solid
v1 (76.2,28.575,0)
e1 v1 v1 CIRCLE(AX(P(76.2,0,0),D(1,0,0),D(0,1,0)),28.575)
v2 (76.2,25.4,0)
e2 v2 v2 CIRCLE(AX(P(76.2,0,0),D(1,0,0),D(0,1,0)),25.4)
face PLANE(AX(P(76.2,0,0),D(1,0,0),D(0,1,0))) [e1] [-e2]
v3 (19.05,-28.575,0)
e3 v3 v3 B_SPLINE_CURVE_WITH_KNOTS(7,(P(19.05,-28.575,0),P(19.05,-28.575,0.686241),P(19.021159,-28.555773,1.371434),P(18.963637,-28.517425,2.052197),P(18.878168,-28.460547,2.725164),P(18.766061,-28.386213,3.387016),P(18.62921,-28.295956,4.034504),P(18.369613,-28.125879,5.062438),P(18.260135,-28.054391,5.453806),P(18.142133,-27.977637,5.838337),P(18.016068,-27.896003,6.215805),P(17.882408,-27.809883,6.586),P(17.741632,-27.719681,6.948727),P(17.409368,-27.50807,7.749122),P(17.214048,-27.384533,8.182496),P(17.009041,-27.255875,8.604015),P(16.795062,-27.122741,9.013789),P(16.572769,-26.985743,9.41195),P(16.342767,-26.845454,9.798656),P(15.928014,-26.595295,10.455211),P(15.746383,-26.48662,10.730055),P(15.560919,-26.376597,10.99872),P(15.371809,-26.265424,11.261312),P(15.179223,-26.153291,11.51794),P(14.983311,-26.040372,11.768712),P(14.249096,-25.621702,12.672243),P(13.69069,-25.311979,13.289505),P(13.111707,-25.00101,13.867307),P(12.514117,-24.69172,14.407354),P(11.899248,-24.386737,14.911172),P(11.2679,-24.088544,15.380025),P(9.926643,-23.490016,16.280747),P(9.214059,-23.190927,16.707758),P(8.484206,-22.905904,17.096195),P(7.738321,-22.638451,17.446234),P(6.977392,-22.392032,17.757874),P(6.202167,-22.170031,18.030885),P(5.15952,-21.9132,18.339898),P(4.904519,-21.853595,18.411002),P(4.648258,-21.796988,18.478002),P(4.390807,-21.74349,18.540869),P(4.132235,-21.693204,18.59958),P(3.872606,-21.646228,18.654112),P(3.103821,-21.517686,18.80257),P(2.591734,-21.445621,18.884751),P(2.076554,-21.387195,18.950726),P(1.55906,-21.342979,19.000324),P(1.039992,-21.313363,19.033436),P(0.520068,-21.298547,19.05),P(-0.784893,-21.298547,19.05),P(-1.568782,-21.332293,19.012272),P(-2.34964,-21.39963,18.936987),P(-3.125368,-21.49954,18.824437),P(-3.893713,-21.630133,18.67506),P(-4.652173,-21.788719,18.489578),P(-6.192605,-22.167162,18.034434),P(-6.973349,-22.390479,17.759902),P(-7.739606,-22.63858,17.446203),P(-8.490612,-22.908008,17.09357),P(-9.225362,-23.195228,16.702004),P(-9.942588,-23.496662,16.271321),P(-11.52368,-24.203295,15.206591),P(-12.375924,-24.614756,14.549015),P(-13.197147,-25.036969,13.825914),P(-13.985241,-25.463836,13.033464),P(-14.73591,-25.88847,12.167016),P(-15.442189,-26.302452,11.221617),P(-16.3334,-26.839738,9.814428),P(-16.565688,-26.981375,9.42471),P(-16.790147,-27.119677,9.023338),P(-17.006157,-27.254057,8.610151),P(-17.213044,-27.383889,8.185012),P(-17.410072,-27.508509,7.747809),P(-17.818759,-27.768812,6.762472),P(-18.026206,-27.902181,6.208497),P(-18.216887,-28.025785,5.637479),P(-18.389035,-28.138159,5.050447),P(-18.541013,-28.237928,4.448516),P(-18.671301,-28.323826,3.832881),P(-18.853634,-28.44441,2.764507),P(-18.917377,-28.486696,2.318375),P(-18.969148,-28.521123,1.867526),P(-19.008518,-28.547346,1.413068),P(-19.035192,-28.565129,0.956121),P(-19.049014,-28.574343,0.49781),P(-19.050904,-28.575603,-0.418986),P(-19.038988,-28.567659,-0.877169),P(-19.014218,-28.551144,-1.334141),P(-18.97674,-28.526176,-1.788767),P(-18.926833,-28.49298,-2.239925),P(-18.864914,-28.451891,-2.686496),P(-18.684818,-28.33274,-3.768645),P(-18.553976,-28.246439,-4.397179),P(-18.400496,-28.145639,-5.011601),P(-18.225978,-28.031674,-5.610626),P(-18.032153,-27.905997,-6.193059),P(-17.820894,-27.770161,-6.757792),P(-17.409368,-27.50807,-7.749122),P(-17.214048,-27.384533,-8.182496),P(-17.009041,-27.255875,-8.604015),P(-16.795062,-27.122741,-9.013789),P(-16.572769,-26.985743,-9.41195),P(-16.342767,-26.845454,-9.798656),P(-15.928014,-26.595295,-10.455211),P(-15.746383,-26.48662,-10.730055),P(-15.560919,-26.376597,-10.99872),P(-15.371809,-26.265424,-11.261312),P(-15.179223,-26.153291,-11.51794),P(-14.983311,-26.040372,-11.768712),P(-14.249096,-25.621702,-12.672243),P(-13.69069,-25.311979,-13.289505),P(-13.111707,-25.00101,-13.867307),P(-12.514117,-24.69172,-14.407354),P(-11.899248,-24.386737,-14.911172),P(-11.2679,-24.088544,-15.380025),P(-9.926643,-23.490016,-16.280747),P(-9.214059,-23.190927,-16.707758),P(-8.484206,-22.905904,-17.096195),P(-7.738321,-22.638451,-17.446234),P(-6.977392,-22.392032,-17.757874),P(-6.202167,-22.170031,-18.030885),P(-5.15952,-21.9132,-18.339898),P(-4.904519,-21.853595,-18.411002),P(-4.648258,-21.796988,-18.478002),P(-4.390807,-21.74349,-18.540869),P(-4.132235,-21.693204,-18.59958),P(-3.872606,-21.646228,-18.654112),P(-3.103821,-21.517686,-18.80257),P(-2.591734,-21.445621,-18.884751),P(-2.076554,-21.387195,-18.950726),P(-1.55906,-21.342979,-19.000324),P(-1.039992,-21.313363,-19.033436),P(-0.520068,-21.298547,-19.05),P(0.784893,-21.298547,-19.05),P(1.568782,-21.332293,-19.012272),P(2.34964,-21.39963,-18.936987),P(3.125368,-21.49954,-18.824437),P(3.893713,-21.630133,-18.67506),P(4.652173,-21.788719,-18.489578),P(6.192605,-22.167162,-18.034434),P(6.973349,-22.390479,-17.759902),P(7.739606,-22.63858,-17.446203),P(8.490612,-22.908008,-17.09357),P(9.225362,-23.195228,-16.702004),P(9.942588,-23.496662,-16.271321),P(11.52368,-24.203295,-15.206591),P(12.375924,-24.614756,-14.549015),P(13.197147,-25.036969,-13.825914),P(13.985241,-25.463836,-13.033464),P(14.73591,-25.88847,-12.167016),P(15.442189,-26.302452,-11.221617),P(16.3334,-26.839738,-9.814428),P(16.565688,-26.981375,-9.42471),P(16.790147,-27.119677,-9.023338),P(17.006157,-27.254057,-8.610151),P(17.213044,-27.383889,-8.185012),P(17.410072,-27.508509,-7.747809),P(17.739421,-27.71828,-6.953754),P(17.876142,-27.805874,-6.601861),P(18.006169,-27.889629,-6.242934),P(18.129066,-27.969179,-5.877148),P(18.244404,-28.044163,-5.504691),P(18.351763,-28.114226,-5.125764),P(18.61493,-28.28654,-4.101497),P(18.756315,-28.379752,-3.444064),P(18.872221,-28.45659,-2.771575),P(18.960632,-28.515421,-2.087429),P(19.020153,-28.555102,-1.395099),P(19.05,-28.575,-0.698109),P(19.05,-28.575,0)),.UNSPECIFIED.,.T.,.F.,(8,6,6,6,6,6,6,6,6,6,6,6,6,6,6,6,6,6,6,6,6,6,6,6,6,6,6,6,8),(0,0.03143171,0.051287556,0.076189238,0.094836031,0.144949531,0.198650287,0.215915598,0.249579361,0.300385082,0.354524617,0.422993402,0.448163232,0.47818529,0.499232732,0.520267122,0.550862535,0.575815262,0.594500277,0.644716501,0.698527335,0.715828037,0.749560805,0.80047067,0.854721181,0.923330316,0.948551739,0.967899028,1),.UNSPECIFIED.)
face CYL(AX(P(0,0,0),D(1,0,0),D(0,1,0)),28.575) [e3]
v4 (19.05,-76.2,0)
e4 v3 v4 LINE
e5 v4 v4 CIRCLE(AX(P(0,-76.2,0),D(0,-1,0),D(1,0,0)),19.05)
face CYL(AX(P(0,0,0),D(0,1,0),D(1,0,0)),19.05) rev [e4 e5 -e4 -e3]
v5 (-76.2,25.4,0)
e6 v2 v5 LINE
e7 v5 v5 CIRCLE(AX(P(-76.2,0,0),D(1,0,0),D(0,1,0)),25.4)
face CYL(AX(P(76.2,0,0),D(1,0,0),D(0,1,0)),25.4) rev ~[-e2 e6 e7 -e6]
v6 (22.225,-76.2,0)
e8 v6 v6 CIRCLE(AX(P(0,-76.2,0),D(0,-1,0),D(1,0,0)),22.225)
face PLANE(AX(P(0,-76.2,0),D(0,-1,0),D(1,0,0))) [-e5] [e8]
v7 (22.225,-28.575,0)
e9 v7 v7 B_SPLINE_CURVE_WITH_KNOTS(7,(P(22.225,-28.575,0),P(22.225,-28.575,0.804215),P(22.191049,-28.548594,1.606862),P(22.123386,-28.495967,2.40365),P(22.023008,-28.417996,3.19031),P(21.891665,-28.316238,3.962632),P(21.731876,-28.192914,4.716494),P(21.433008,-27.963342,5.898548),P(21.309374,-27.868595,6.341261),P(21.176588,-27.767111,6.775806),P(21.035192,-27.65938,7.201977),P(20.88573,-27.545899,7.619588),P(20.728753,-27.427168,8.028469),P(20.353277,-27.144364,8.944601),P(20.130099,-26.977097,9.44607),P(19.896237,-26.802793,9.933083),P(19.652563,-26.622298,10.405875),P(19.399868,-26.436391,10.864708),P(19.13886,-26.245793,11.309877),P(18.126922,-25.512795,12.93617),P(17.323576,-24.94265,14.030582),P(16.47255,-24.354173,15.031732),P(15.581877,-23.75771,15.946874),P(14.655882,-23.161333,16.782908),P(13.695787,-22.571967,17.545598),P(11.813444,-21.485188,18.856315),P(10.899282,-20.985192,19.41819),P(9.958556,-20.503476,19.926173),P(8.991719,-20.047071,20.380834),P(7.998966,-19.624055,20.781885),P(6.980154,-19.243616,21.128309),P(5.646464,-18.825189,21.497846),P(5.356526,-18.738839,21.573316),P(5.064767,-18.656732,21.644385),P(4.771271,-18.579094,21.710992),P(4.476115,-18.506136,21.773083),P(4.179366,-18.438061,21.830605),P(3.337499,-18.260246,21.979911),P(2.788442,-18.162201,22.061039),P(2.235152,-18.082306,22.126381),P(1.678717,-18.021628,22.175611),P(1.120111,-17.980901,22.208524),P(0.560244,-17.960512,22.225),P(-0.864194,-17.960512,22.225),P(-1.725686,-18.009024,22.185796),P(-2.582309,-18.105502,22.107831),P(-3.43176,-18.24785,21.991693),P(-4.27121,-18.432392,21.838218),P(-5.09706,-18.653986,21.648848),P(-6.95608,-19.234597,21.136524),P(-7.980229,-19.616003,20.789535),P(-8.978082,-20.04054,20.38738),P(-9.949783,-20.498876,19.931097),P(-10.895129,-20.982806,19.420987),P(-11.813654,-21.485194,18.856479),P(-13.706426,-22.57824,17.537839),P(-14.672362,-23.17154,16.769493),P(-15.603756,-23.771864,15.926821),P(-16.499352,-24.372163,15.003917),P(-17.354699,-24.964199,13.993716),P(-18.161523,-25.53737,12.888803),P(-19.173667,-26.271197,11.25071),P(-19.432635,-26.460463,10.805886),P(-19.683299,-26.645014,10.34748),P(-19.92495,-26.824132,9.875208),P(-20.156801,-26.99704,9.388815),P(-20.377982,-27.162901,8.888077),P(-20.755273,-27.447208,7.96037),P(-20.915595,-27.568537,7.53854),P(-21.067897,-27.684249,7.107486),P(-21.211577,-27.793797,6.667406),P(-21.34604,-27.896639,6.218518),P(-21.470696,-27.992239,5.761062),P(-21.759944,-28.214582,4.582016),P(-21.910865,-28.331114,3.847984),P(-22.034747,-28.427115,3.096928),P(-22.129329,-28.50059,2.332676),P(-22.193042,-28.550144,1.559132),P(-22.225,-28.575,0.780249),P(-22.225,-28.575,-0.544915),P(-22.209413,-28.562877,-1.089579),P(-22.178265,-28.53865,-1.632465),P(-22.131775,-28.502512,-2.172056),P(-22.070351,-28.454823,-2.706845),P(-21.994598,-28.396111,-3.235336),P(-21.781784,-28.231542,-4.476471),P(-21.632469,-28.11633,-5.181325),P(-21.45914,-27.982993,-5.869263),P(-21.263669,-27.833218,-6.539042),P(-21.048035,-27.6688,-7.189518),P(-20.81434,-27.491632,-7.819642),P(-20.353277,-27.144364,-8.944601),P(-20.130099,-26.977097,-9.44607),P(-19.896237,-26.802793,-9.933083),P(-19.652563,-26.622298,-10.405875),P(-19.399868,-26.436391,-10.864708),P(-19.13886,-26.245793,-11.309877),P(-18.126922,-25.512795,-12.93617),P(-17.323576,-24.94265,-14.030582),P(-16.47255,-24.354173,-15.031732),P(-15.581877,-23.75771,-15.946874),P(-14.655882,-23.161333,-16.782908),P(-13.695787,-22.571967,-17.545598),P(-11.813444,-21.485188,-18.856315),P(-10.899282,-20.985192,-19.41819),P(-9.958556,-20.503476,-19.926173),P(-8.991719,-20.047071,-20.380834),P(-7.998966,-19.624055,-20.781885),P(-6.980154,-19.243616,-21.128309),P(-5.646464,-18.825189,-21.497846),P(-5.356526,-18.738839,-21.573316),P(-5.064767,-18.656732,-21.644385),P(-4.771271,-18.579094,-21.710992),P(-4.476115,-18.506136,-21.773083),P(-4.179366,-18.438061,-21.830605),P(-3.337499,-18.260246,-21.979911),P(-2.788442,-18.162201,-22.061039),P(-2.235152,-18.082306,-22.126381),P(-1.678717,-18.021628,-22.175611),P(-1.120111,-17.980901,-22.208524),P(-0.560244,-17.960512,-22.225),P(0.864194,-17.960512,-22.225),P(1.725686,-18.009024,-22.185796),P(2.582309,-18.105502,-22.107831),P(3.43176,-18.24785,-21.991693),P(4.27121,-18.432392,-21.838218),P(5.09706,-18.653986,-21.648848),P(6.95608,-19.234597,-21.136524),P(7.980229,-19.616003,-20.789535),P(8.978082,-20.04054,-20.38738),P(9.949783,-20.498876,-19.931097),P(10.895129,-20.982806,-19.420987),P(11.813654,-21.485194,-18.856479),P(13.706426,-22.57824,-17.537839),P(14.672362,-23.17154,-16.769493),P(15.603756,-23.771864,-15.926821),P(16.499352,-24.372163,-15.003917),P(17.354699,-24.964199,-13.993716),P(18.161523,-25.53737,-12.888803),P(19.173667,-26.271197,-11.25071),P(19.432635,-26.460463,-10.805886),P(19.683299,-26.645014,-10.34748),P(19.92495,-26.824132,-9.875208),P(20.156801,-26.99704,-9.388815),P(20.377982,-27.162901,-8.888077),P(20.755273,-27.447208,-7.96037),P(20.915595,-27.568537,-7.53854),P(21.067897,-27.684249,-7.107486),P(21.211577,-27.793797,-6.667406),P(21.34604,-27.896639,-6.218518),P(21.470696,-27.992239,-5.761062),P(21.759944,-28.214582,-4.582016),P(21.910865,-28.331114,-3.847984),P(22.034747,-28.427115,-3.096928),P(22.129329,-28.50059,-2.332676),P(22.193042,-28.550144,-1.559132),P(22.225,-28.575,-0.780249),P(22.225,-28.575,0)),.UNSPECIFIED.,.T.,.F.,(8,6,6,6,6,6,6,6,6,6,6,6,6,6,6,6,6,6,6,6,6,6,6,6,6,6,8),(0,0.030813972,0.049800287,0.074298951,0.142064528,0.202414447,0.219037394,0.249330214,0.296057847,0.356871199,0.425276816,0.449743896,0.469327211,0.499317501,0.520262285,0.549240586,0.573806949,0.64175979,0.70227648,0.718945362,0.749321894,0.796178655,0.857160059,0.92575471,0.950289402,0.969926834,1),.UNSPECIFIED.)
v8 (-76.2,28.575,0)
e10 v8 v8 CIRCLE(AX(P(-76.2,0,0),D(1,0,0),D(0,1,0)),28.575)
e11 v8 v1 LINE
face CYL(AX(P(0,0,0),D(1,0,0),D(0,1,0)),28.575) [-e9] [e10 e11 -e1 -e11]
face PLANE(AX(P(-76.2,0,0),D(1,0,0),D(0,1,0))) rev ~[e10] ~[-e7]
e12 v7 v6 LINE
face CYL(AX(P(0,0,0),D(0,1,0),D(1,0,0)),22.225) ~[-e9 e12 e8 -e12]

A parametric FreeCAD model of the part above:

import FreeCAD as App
import Part
import Sketcher

V = App.Vector
Q = App.Units.Quantity

doc = App.newDocument("Part")
body = doc.addObject("PartDesign::Body", "Body")

# Sketch on YZ plane
sketch1 = doc.addObject("Sketcher::SketchObject", "Sketch")
body.addObject(sketch1)
sketch1.AttachmentSupport = (doc.YZ_Plane, [""])
sketch1.MapMode = "FlatFace"
sketch1.addGeometry(Part.Circle(V(0, 0, 0), V(0, 0, 1), 29), False)
sketch1.addConstraint([
    Sketcher.Constraint("Coincident", 0, 3, -1, 1),
    Sketcher.Constraint("Diameter", 0, Q("2.25 in")),
])
pad1 = doc.addObject("PartDesign::Pad", "Pad")
body.addObject(pad1)
pad1.Profile = sketch1
pad1.Type = "TwoLengths"
pad1.Length = Q("3 in")
pad1.Length2 = Q("3 in")

# Sketch on XZ plane
sketch2 = doc.addObject("Sketcher::SketchObject", "Sketch001")
body.addObject(sketch2)
sketch2.AttachmentSupport = (doc.XZ_Plane, [""])
sketch2.MapMode = "FlatFace"
sketch2.addGeometry([
    Part.Circle(V(0, 0, 0), V(0, 0, 1), 22),
    Part.Circle(V(0, 0, 0), V(0, 0, 1), 19),
], False)
sketch2.addConstraint([
    Sketcher.Constraint("Coincident", 0, 3, -1, 1),
    Sketcher.Constraint("Coincident", 1, 3, -1, 1),
    Sketcher.Constraint("Diameter", 1, Q("1.5 in")),
    Sketcher.Constraint("Diameter", 0, Q("1.75 in")),
])
pad2 = doc.addObject("PartDesign::Pad", "Pad001")
body.addObject(pad2)
pad2.Profile = sketch2
pad2.Length = Q("3 in")

# Sketch on YZ plane
sketch3 = doc.addObject("Sketcher::SketchObject", "Sketch002")
body.addObject(sketch3)
sketch3.AttachmentSupport = (doc.YZ_Plane, [""])
sketch3.MapMode = "FlatFace"
sketch3.AttachmentOffset = App.Placement(V(0, 0, 3 * 25.4), App.Rotation())
sketch3.addGeometry(Part.Circle(V(0, 0, 0), V(0, 0, 1), 25), False)
sketch3.addConstraint([
    Sketcher.Constraint("Coincident", 0, 3, -1, 1),
    Sketcher.Constraint("Diameter", 0, Q("2 in")),
])
pocket1 = doc.addObject("PartDesign::Pocket", "Pocket")
body.addObject(pocket1)
pocket1.Profile = sketch3
pocket1.Length = Q("6 in")

doc.recompute()
